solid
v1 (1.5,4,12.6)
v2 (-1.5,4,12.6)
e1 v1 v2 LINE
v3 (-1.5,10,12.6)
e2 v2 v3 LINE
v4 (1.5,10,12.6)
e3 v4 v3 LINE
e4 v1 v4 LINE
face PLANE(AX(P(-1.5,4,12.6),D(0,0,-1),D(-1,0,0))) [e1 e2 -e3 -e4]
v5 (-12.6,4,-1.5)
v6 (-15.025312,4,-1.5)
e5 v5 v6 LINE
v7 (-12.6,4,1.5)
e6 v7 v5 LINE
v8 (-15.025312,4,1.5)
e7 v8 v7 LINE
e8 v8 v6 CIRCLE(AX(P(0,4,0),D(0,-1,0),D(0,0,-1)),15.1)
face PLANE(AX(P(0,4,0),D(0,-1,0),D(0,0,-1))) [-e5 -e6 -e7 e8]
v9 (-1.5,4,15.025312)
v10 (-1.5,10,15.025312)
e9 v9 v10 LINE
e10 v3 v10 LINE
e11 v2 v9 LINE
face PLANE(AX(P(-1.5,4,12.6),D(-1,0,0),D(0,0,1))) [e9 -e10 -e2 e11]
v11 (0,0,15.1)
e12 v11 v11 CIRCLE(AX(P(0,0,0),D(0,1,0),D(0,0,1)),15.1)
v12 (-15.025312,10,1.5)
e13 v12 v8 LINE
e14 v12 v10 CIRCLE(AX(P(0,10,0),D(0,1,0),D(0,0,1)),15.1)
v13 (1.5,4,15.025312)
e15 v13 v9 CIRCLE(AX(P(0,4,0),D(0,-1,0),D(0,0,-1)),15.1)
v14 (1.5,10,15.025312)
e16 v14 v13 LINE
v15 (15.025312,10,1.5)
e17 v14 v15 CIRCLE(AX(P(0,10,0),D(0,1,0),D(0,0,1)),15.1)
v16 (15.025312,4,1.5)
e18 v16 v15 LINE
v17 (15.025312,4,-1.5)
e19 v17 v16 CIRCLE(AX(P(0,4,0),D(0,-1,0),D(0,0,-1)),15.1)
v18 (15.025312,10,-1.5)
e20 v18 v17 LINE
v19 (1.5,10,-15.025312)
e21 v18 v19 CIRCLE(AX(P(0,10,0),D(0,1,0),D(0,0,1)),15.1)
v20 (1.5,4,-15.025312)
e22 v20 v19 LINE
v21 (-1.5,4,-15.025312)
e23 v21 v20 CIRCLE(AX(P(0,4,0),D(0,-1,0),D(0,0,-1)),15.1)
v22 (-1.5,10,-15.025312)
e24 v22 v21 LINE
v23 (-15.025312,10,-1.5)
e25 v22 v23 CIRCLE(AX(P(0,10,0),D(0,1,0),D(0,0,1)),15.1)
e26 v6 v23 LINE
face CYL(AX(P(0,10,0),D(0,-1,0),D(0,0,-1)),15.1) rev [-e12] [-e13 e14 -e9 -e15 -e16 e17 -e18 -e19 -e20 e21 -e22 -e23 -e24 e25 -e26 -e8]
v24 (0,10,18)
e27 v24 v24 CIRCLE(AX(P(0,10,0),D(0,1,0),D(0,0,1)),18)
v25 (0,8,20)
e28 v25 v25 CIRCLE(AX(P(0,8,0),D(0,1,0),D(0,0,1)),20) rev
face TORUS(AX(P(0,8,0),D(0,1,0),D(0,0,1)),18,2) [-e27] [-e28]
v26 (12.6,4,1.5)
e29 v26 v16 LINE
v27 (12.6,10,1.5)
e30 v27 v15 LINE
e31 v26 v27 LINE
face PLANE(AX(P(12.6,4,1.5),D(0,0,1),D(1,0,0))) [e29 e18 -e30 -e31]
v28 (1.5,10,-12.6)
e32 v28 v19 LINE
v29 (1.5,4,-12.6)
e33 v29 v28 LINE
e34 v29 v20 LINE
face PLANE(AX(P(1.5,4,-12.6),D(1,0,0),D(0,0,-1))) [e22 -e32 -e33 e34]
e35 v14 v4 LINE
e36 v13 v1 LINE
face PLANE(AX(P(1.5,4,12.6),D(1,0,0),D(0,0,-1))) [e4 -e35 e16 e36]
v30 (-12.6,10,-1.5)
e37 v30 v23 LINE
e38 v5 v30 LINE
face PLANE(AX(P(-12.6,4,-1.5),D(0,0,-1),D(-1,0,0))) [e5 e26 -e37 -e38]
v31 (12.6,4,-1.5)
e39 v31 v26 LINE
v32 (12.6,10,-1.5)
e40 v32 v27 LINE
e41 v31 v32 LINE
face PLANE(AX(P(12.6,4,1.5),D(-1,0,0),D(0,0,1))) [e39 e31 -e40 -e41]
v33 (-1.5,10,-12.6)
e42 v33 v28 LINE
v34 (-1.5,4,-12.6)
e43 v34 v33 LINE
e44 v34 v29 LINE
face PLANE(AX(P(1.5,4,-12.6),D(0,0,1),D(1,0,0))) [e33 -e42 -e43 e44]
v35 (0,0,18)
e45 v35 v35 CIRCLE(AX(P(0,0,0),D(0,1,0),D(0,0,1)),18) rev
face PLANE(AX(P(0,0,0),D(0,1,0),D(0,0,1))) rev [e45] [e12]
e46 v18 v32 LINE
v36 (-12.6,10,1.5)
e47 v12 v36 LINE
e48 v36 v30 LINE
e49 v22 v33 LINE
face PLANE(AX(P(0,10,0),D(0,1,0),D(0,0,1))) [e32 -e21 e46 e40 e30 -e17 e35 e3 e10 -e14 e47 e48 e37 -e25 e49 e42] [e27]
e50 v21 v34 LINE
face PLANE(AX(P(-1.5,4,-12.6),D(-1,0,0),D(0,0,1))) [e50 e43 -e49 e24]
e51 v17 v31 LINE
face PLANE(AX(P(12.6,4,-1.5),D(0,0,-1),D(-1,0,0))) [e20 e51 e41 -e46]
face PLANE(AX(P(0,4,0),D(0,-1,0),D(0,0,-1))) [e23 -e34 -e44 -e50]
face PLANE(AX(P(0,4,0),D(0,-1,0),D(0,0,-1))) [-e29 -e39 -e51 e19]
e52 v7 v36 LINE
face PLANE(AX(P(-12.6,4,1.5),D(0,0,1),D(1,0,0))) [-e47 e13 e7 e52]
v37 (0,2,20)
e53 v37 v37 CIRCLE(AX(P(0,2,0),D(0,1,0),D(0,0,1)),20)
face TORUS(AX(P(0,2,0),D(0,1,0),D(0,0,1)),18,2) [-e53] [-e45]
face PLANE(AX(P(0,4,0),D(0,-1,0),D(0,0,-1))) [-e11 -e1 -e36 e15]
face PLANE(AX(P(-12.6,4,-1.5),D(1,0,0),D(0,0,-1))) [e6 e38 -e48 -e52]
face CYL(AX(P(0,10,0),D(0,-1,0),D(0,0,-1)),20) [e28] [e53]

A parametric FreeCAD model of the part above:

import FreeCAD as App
import Part
import Sketcher

V = App.Vector
Q = App.Units.Quantity


def edges_at(feature, points):
    """Names of the edges that pass closest to the given points."""
    edges = feature.Shape.Edges
    near = lambda p: min(range(len(edges)), key=lambda i: edges[i].distToShape(Part.Vertex(*p))[0])
    return sorted({f"Edge{near(p) + 1}" for p in points})


def add_polygon(sketch, points):
    """Adds a closed chain of lines whose ends are joined by coincident constraints."""
    first, n = sketch.GeometryCount, len(points)
    for a, b in zip(points, points[1:] + points[:1]):
        sketch.addGeometry(Part.LineSegment(App.Vector(*a, 0), App.Vector(*b, 0)), False)
    for i in range(n):
        sketch.addConstraint(Sketcher.Constraint("Coincident", first + i, 2, first + (i + 1) % n, 1))

doc = App.newDocument("Part")
params = doc.addObject("Spreadsheet::Sheet", "Params")
for row, (alias, value) in enumerate([
    ("sketch1_diameter", "40 mm"),
    ("sketch1_diameter2", "30.2 mm"),
    ("pad1_length", "10 mm"),
    ("fillet_radius", "2 mm"),
    ("sketch2_width", "3 mm"),
    ("sketch2_width2", "5 mm"),
    ("pad2_length", "6 mm"),
], start=1):
    params.set(f"A{row}", alias)
    params.set(f"B{row}", "=" + value)
    params.setAlias(f"B{row}", alias)

body = doc.addObject("PartDesign::Body", "Body")

# Sketch on XZ plane
sketch1 = body.newObject("Sketcher::SketchObject", "Sketch")
sketch1.AttachmentSupport = (doc.getObject("XZ_Plane"), [""])
sketch1.MapMode = "FlatFace"
sketch1.addGeometry(Part.Circle(V(0, 0, 0), V(0, 0, 1), 20), False)
sketch1.addGeometry(Part.Circle(V(0, 0, 0), V(0, 0, 1), 15), False)
sketch1.addConstraint(Sketcher.Constraint("Coincident", 0, 3, -1, 1))
sketch1.addConstraint(Sketcher.Constraint("Coincident", 1, 3, -1, 1))
sketch1.addConstraint(Sketcher.Constraint("Diameter", 0, Q("40 mm")))
sketch1.addConstraint(Sketcher.Constraint("Diameter", 1, Q("30.2 mm")))
sketch1.setExpression("Constraints[2]", "Params.sketch1_diameter")
sketch1.setExpression("Constraints[3]", "Params.sketch1_diameter2")
pad1 = body.newObject("PartDesign::Pad", "Pad")
pad1.Profile = sketch1
pad1.setExpression("Length", "Params.pad1_length")
pad1.Reversed = True
doc.recompute()

fillet = body.newObject("PartDesign::Fillet", "Fillet")
fillet.Base = (pad1, edges_at(pad1, [(-20, 0, 0), (-20, 10, 0)]))
fillet.setExpression("Radius", "Params.fillet_radius")

# Sketch on XZ plane
sketch2 = body.newObject("Sketcher::SketchObject", "Sketch001")
sketch2.AttachmentSupport = (doc.getObject("XZ_Plane"), [""])
sketch2.MapMode = "FlatFace"
sketch2.AttachmentOffset = App.Placement(V(0, 0, -10), App.Rotation())
add_polygon(sketch2, [(-1.5, -17.6), (-1.5, -12.6), (1.5, -12.6), (1.5, -17.6)])  # lines 0-3
add_polygon(sketch2, [(-17.6, -1.5), (-17.6, 1.5), (-12.6, 1.5), (-12.6, -1.5)])  # lines 4-7
add_polygon(sketch2, [(12.6, -1.5), (12.6, 1.5), (17.6, 1.5), (17.6, -1.5)])  # lines 8-11
add_polygon(sketch2, [(-1.5, 12.6), (-1.5, 17.6), (1.5, 17.6), (1.5, 12.6)])  # lines 12-15
sketch2.addConstraint(Sketcher.Constraint("Vertical", 0))
sketch2.addConstraint(Sketcher.Constraint("Horizontal", 1))
sketch2.addConstraint(Sketcher.Constraint("Vertical", 2))
sketch2.addConstraint(Sketcher.Constraint("Horizontal", 3))
sketch2.addConstraint(Sketcher.Constraint("Vertical", 4))
sketch2.addConstraint(Sketcher.Constraint("Horizontal", 5))
sketch2.addConstraint(Sketcher.Constraint("Vertical", 6))
sketch2.addConstraint(Sketcher.Constraint("Horizontal", 7))
sketch2.addConstraint(Sketcher.Constraint("Vertical", 8))
sketch2.addConstraint(Sketcher.Constraint("Horizontal", 9))
sketch2.addConstraint(Sketcher.Constraint("Vertical", 10))
sketch2.addConstraint(Sketcher.Constraint("Horizontal", 11))
sketch2.addConstraint(Sketcher.Constraint("Vertical", 12))
sketch2.addConstraint(Sketcher.Constraint("Horizontal", 13))
sketch2.addConstraint(Sketcher.Constraint("Vertical", 14))
sketch2.addConstraint(Sketcher.Constraint("Horizontal", 15))
sketch2.addConstraint(Sketcher.Constraint("Symmetric", 6, 2, 8, 2, -1, 1))
sketch2.addConstraint(Sketcher.Constraint("Symmetric", 4, 2, 10, 2, -1, 1))
sketch2.addConstraint(Sketcher.Constraint("Symmetric", 2, 2, 12, 2, -1, 1))
sketch2.addConstraint(Sketcher.Constraint("Symmetric", 0, 2, 14, 2, -1, 1))
sketch2.addConstraint(Sketcher.Constraint("Horizontal", 5, 2, 8, 2))
sketch2.addConstraint(Sketcher.Constraint("Vertical", 3, 2, 12, 2))
sketch2.addConstraint(Sketcher.Constraint("Equal", 11, 0))
sketch2.addConstraint(Sketcher.Constraint("Equal", 15, 4))
sketch2.addConstraint(Sketcher.Constraint("DistanceX", 1, 1, 1, 2, Q("3 mm")))
sketch2.addConstraint(Sketcher.Constraint("DistanceX", 5, 1, 5, 2, Q("5 mm")))
sketch2.addConstraint(Sketcher.Constraint("DistanceY", 0, 2, -1, 1, Q("12.6 mm")))
sketch2.addConstraint(Sketcher.Constraint("DistanceX", 4, 2, -1, 1, Q("17.6 mm")))
sketch2.setExpression("Constraints[40]", "Params.sketch2_width")
sketch2.setExpression("Constraints[41]", "Params.sketch2_width2")
pad2 = body.newObject("PartDesign::Pad", "Pad001")
pad2.Profile = sketch2
pad2.setExpression("Length", "Params.pad2_length")

doc.recompute()
